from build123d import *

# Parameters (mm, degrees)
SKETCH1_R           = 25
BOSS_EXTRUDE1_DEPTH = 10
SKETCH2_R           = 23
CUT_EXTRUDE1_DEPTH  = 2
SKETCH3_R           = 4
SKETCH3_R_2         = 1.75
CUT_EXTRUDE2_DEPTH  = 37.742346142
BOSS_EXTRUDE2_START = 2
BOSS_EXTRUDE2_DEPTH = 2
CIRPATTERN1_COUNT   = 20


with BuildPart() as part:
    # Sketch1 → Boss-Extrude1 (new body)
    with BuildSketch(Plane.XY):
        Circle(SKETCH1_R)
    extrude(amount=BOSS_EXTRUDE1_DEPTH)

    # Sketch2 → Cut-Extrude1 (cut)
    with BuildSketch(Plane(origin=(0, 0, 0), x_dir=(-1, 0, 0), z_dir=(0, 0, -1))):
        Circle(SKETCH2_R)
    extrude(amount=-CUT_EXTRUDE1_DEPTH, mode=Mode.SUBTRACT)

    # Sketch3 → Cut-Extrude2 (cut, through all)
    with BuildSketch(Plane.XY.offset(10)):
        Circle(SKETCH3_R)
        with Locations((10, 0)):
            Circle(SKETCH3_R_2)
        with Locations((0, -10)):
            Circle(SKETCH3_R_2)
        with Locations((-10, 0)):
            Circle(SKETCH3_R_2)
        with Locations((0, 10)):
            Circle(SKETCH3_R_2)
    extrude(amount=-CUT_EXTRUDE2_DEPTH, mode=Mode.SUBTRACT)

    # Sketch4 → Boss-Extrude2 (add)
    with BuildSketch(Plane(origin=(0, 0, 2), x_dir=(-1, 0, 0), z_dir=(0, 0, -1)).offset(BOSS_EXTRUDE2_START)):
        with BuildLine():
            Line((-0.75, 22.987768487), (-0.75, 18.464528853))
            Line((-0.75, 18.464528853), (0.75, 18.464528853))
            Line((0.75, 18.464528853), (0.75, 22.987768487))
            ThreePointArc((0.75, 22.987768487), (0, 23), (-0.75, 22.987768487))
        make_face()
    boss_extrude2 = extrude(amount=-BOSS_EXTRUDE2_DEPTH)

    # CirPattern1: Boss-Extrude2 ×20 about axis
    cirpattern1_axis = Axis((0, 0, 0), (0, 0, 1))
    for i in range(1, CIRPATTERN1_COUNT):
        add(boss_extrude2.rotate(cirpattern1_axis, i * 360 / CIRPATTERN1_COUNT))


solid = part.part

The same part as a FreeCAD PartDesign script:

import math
import FreeCAD as App
import Part
import Sketcher

V = App.Vector
Q = App.Units.Quantity

doc = App.newDocument("Part")
params = doc.addObject("Spreadsheet::Sheet", "Params")
for row, (alias, value) in enumerate([
    ("sketch1_diameter", "50 mm"),
    ("pad1_length", "10 mm"),
    ("sketch2_diameter", "46 mm"),
    ("pocket1_length", "2 mm"),
    ("sketch3_diameter", "8 mm"),
    ("sketch3_diameter2", "3.5 mm"),
    ("sketch4_radius", "23 mm"),
    ("sketch4_width", "1.5 mm"),
    ("pad2_length", "2 mm"),
], start=1):
    params.set(f"A{row}", alias)
    params.set(f"B{row}", "=" + value)
    params.setAlias(f"B{row}", alias)

body = doc.addObject("PartDesign::Body", "Body")

sketch1 = doc.addObject("Sketcher::SketchObject", "Sketch")
body.addObject(sketch1)
sketch1.AttachmentSupport = (doc.XY_Plane, [""])
sketch1.MapMode = "FlatFace"
sketch1.addGeometry(Part.Circle(V(0, 0, 0), V(0, 0, 1), 25), False)
sketch1.addConstraint([
    Sketcher.Constraint("Coincident", 0, 3, -1, 1),
    Sketcher.Constraint("Diameter", 0, Q("50 mm")),
])
sketch1.setExpression("Constraints[1]", "Params.sketch1_diameter")
pad1 = doc.addObject("PartDesign::Pad", "Pad")
body.addObject(pad1)
pad1.Profile = sketch1
pad1.setExpression("Length", "Params.pad1_length")

sketch2 = doc.addObject("Sketcher::SketchObject", "Sketch001")
body.addObject(sketch2)
sketch2.AttachmentSupport = (doc.XY_Plane, [""])
sketch2.MapMode = "FlatFace"
sketch2.addGeometry(Part.Circle(V(0, 0, 0), V(0, 0, 1), 23), False)
sketch2.addConstraint([
    Sketcher.Constraint("Coincident", 0, 3, -1, 1),
    Sketcher.Constraint("Diameter", 0, Q("46 mm")),
])
sketch2.setExpression("Constraints[1]", "Params.sketch2_diameter")
pocket1 = doc.addObject("PartDesign::Pocket", "Pocket")
body.addObject(pocket1)
pocket1.Profile = sketch2
pocket1.setExpression("Length", "Params.pocket1_length")
pocket1.Reversed = True

sketch3 = doc.addObject("Sketcher::SketchObject", "Sketch002")
body.addObject(sketch3)
sketch3.AttachmentSupport = (doc.XY_Plane, [""])
sketch3.MapMode = "FlatFace"
sketch3.AttachmentOffset = App.Placement(V(0, 0, 10), App.Rotation())
sketch3.addGeometry([
    Part.Circle(V(0, 0, 0), V(0, 0, 1), 4),
    Part.Circle(V(10, 0, 0), V(0, 0, 1), 1.8),
    Part.Circle(V(0, -10, 0), V(0, 0, 1), 1.8),
    Part.Circle(V(-10, 0, 0), V(0, 0, 1), 1.8),
    Part.Circle(V(0, 10, 0), V(0, 0, 1), 1.8),
], False)
sketch3.addConstraint([
    Sketcher.Constraint("Coincident", 0, 3, -1, 1),
    Sketcher.Constraint("Equal", 1, 2),
    Sketcher.Constraint("Equal", 2, 3),
    Sketcher.Constraint("Equal", 3, 4),
    Sketcher.Constraint("Symmetric", 1, 3, 3, 3, -1, 1),
    Sketcher.Constraint("Symmetric", 2, 3, 4, 3, -1, 1),
    Sketcher.Constraint("PointOnObject", 1, 3, -1),
    Sketcher.Constraint("PointOnObject", 2, 3, -2),
    Sketcher.Constraint("Diameter", 0, Q("8 mm")),
    Sketcher.Constraint("Diameter", 1, Q("3.5 mm")),
    Sketcher.Constraint("DistanceX", -1, 1, 1, 3, Q("10 mm")),
    Sketcher.Constraint("DistanceY", 2, 3, -1, 1, Q("10 mm")),
])
sketch3.setExpression("Constraints[8]", "Params.sketch3_diameter")
sketch3.setExpression("Constraints[9]", "Params.sketch3_diameter2")
pocket2 = doc.addObject("PartDesign::Pocket", "Pocket001")
body.addObject(pocket2)
pocket2.Profile = sketch3
pocket2.Type = "ThroughAll"

sketch4 = doc.addObject("Sketcher::SketchObject", "Sketch003")
body.addObject(sketch4)
sketch4.AttachmentSupport = (doc.XY_Plane, [""])
sketch4.MapMode = "FlatFace"
sketch4.addGeometry([
    Part.LineSegment(V(0.8, 23, 0), V(0.8, 18.5, 0)),
    Part.LineSegment(V(0.8, 18.5, 0), V(-0.8, 18.5, 0)),
    Part.LineSegment(V(-0.8, 18.5, 0), V(-0.8, 23, 0)),
    Part.ArcOfCircle(Part.Circle(V(0, 0, 0), V(0, 0, 1), 23), math.radians(88.13), math.radians(91.87)),
], False)
sketch4.addConstraint([
    Sketcher.Constraint("Coincident", 0, 2, 1, 1),
    Sketcher.Constraint("Coincident", 1, 2, 2, 1),
    Sketcher.Constraint("Coincident", 2, 2, 3, 2),
    Sketcher.Constraint("Coincident", 3, 1, 0, 1),
    Sketcher.Constraint("Vertical", 0),
    Sketcher.Constraint("Horizontal", 1),
    Sketcher.Constraint("Vertical", 2),
    Sketcher.Constraint("Coincident", 3, 3, -1, 1),
    Sketcher.Constraint("Horizontal", 2, 2, 3, 1),
    Sketcher.Constraint("Radius", 3, Q("23 mm")),
    Sketcher.Constraint("DistanceX", 1, 2, 1, 1, Q("1.5 mm")),
    Sketcher.Constraint("DistanceY", 0, 2, 0, 1, Q("4.52324 mm")),
])
sketch4.setExpression("Constraints[9]", "Params.sketch4_radius")
sketch4.setExpression("Constraints[10]", "Params.sketch4_width")
pad2 = doc.addObject("PartDesign::Pad", "Pad001")
body.addObject(pad2)
pad2.Profile = sketch4
pad2.setExpression("Length", "Params.pad2_length")
doc.recompute()

polarpattern = doc.addObject("PartDesign::PolarPattern", "PolarPattern")
body.addObject(polarpattern)
polarpattern.Originals = [pad2]
polarpattern.Axis = (doc.Z_Axis, [""])
polarpattern.Angle = 360
polarpattern.Occurrences = 20
body.Tip = polarpattern

doc.recompute()
